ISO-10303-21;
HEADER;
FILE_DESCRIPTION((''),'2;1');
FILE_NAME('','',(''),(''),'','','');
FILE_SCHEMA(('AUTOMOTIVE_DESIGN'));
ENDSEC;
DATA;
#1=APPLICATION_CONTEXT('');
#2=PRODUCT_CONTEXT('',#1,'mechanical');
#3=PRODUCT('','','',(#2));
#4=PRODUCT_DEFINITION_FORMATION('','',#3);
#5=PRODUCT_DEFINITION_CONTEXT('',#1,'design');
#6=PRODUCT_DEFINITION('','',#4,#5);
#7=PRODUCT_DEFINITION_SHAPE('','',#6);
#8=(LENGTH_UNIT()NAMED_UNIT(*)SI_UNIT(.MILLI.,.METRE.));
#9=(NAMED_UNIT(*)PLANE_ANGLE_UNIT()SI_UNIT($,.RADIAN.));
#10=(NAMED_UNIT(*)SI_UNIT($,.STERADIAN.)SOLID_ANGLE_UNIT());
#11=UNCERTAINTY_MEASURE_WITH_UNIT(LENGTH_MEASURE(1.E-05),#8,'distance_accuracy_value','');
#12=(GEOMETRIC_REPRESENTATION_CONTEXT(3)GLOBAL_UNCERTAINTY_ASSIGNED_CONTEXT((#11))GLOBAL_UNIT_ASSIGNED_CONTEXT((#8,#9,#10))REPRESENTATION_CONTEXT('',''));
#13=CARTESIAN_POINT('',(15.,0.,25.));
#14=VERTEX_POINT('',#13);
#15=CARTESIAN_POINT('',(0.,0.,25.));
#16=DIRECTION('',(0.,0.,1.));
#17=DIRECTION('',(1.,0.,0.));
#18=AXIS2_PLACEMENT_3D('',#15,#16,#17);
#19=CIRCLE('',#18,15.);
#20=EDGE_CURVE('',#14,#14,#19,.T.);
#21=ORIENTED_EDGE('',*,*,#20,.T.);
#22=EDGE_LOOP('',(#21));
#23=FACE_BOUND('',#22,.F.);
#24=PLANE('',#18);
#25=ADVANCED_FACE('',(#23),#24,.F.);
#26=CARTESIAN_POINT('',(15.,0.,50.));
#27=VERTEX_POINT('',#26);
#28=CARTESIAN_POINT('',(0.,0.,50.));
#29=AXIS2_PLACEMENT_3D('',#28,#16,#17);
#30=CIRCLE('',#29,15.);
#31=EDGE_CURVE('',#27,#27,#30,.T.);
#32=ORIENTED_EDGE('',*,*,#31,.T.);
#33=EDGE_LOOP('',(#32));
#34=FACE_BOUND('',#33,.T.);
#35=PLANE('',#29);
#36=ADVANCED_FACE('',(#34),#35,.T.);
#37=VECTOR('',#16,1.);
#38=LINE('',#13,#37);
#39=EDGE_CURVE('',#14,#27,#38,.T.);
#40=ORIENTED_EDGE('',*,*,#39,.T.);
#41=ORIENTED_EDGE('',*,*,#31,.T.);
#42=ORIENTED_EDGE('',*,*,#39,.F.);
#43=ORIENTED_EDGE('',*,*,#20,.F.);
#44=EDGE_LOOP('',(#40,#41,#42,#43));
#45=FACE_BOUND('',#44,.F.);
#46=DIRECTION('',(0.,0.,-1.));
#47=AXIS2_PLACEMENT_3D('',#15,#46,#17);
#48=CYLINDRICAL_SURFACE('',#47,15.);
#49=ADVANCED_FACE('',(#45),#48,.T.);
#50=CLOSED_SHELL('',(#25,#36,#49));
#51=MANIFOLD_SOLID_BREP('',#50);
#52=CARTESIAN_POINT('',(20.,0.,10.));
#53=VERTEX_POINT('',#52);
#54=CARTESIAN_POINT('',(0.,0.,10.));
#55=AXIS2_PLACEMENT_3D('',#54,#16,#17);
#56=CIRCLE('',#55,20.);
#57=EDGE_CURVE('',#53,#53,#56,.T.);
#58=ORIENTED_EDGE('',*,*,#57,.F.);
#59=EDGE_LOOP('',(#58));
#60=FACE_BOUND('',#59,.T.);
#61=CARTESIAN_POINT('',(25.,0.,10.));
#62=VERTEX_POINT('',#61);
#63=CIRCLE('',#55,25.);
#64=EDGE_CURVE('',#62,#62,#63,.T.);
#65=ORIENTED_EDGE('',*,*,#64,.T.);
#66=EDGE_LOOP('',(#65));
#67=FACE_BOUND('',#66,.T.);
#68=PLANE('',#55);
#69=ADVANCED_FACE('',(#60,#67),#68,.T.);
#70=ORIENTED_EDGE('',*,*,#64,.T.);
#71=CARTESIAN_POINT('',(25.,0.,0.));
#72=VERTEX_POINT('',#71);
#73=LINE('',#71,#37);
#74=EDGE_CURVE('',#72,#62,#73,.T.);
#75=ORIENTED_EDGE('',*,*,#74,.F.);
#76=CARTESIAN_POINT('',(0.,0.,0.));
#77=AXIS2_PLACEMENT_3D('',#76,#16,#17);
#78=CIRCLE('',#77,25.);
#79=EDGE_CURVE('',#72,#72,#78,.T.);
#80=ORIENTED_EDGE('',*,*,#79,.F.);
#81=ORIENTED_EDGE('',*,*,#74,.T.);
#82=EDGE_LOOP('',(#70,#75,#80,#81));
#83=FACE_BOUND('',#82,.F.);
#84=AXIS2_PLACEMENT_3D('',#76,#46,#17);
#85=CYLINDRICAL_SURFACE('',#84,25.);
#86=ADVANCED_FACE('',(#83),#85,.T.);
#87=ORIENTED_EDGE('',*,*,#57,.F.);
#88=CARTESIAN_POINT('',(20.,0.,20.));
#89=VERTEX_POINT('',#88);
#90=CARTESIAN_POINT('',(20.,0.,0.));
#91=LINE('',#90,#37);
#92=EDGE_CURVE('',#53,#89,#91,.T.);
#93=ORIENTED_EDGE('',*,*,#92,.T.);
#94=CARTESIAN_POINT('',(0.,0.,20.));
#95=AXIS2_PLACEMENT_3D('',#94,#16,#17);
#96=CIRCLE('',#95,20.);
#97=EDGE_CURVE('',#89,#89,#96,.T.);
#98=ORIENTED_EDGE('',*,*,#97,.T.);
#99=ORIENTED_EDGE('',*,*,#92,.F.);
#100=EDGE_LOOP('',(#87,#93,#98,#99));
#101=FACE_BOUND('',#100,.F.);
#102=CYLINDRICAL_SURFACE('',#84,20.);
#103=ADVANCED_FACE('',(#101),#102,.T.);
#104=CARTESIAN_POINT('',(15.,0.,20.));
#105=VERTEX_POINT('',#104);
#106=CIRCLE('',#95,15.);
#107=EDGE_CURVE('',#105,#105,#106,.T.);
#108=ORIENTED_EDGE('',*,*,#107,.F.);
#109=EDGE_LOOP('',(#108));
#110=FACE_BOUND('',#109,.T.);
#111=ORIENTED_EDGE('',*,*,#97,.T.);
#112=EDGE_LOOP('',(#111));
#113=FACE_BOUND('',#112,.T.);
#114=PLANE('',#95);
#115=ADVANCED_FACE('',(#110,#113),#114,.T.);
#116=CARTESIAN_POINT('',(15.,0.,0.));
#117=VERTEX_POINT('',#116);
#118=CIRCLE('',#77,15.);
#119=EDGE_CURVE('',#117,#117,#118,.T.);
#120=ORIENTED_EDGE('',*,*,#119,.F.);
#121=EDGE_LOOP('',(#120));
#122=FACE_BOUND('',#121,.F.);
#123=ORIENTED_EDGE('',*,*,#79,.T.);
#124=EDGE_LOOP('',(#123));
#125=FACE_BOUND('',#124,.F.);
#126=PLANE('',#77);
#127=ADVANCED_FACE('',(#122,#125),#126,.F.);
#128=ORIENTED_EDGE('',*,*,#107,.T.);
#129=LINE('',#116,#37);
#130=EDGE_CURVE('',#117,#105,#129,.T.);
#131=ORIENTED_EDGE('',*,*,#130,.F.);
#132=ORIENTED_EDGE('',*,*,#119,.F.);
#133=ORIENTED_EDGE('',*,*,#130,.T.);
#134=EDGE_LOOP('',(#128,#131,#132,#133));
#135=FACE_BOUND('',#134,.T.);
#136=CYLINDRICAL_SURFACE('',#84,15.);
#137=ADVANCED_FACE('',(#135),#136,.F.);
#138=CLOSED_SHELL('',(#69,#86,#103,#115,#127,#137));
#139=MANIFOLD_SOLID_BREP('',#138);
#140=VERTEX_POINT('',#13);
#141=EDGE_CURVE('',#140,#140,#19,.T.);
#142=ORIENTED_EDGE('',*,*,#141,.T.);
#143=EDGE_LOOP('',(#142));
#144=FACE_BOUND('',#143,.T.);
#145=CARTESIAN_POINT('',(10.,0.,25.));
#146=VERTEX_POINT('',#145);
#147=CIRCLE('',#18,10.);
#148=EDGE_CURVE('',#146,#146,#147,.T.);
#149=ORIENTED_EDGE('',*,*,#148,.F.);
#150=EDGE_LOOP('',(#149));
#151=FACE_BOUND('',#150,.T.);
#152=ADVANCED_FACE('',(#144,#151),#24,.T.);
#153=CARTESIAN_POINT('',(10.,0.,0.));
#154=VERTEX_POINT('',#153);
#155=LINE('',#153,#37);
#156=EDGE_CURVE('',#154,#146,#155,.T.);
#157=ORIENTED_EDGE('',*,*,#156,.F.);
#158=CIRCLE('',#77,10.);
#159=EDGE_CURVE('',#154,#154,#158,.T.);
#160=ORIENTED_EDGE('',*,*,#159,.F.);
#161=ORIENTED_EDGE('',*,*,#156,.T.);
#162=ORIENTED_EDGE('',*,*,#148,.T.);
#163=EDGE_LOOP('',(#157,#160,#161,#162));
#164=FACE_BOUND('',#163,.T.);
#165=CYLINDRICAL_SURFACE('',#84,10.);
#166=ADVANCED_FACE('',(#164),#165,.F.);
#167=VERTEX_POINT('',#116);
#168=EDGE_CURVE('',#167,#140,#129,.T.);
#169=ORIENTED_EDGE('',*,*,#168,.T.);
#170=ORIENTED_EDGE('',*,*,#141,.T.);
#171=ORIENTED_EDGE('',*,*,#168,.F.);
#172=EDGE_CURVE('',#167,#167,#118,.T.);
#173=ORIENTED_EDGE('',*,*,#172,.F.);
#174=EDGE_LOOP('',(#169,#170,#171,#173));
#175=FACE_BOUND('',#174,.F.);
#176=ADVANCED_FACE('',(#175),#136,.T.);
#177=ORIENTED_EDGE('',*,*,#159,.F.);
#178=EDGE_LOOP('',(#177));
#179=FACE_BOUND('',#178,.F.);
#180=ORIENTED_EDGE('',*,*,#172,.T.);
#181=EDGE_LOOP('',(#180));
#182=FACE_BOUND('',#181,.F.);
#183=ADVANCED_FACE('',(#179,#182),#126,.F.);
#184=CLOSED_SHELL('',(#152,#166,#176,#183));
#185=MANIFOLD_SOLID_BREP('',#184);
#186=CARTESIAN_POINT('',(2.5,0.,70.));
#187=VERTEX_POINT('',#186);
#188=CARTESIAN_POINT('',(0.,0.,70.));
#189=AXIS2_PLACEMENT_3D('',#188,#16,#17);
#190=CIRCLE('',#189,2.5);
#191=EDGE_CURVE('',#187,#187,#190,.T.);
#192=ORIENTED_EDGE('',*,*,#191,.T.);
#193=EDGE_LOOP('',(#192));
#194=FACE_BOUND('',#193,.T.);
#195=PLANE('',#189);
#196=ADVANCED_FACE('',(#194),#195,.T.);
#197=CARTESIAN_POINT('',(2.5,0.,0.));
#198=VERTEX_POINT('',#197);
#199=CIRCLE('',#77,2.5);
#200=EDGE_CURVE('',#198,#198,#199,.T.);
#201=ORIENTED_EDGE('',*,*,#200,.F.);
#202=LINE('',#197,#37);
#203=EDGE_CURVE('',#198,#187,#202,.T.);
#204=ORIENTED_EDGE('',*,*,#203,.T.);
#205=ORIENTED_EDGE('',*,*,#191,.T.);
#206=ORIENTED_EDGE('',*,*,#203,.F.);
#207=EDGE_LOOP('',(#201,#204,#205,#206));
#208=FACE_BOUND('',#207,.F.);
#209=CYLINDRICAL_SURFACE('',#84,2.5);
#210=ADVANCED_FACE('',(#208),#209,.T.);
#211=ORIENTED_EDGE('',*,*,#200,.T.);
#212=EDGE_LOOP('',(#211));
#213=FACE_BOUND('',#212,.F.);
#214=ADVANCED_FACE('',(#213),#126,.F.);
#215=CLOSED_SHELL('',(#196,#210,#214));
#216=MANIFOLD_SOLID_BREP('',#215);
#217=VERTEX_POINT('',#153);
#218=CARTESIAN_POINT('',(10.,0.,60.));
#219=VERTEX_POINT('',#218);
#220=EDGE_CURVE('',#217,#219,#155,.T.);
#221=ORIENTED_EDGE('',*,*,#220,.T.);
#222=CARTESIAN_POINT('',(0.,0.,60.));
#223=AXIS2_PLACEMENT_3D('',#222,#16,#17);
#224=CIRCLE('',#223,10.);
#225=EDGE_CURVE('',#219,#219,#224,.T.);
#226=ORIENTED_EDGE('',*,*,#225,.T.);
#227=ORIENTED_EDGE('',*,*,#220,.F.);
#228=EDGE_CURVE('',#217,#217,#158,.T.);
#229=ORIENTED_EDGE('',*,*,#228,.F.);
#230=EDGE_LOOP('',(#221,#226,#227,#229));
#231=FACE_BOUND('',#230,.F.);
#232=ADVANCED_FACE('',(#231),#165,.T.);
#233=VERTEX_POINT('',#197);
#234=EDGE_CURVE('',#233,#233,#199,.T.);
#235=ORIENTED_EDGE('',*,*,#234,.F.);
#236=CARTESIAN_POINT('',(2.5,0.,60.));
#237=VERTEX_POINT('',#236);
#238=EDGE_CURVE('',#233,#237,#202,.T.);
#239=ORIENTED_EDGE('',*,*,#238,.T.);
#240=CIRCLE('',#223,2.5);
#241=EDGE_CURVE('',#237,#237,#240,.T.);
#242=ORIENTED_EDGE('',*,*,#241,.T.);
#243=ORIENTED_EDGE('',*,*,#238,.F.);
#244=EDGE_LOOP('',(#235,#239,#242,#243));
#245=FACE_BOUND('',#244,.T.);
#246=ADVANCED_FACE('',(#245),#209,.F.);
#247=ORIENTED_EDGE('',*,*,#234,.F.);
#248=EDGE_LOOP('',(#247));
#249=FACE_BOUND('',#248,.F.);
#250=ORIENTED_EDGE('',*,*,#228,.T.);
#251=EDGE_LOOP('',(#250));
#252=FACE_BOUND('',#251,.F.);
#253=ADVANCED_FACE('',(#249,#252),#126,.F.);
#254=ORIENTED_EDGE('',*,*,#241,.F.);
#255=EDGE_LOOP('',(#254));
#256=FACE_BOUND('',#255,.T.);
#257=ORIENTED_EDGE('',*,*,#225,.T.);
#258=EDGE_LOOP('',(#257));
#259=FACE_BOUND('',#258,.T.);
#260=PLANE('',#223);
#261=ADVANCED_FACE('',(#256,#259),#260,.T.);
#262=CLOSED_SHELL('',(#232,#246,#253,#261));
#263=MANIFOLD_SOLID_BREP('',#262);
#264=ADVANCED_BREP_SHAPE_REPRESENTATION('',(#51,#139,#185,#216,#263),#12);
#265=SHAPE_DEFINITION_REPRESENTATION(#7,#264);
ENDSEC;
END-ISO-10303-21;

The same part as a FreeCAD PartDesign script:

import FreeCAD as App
import Part
import Sketcher
from FreeCAD import Vector
Q = App.Units.Quantity

doc = App.newDocument("Part")
body = doc.addObject("PartDesign::Body", "Body")

# Sketch on XY plane
sketch1 = doc.addObject("Sketcher::SketchObject", "Sketch")
body.addObject(sketch1)
sketch1.AttachmentSupport = (doc.XY_Plane, [""])
sketch1.MapMode = "FlatFace"
sketch1.addGeometry(Part.Circle(Vector(0, 0, 0), Vector(0, 0, 1), 2.5), False)
sketch1.addConstraint(Sketcher.Constraint("Coincident", 0, 3, -1, 1))
sketch1.addConstraint(Sketcher.Constraint("Diameter", 0, Q("5 mm")))
pad1 = doc.addObject("PartDesign::Pad", "Pad")
body.addObject(pad1)
pad1.Profile = sketch1
pad1.Length = 70
body2 = doc.addObject("PartDesign::Body", "Body001")

# Sketch on XY plane
sketch2 = doc.addObject("Sketcher::SketchObject", "Sketch001")
body2.addObject(sketch2)
sketch2.AttachmentSupport = (doc.getObject("XY_Plane001"), [""])
sketch2.MapMode = "FlatFace"
sketch2.addGeometry(Part.Circle(Vector(0, 0, 0), Vector(0, 0, 1), 25), False)
sketch2.addGeometry(Part.Circle(Vector(0, 0, 0), Vector(0, 0, 1), 20), False)
sketch2.addConstraint(Sketcher.Constraint("Coincident", 0, 3, -1, 1))
sketch2.addConstraint(Sketcher.Constraint("Coincident", 1, 3, -1, 1))
sketch2.addConstraint(Sketcher.Constraint("Diameter", 0, Q("50 mm")))
sketch2.addConstraint(Sketcher.Constraint("Diameter", 1, Q("40 mm")))
pad2 = doc.addObject("PartDesign::Pad", "Pad001")
body2.addObject(pad2)
pad2.Profile = sketch2
pad2.Length = 10

# Sketch on XY plane
sketch3 = doc.addObject("Sketcher::SketchObject", "Sketch002")
body2.addObject(sketch3)
sketch3.AttachmentSupport = (doc.getObject("XY_Plane001"), [""])
sketch3.MapMode = "FlatFace"
sketch3.addGeometry(Part.Circle(Vector(0, 0, 0), Vector(0, 0, 1), 20), False)
sketch3.addGeometry(Part.Circle(Vector(0, 0, 0), Vector(0, 0, 1), 15), False)
sketch3.addConstraint(Sketcher.Constraint("Coincident", 0, 3, -1, 1))
sketch3.addConstraint(Sketcher.Constraint("Coincident", 1, 3, -1, 1))
sketch3.addConstraint(Sketcher.Constraint("Diameter", 0, Q("40 mm")))
sketch3.addConstraint(Sketcher.Constraint("Diameter", 1, Q("30 mm")))
pad3 = doc.addObject("PartDesign::Pad", "Pad002")
body2.addObject(pad3)
pad3.Profile = sketch3
pad3.Length = 20
body3 = doc.addObject("PartDesign::Body", "Body002")

# Sketch on XY plane
sketch4 = doc.addObject("Sketcher::SketchObject", "Sketch003")
body3.addObject(sketch4)
sketch4.AttachmentSupport = (doc.getObject("XY_Plane002"), [""])
sketch4.MapMode = "FlatFace"
sketch4.addGeometry(Part.Circle(Vector(0, 0, 0), Vector(0, 0, 1), 15), False)
sketch4.addGeometry(Part.Circle(Vector(0, 0, 0), Vector(0, 0, 1), 10), False)
sketch4.addConstraint(Sketcher.Constraint("Coincident", 0, 3, -1, 1))
sketch4.addConstraint(Sketcher.Constraint("Coincident", 1, 3, -1, 1))
sketch4.addConstraint(Sketcher.Constraint("Diameter", 0, Q("30 mm")))
sketch4.addConstraint(Sketcher.Constraint("Diameter", 1, Q("20 mm")))
pad4 = doc.addObject("PartDesign::Pad", "Pad003")
body3.addObject(pad4)
pad4.Profile = sketch4
pad4.Length = 25
body4 = doc.addObject("PartDesign::Body", "Body003")

# Sketch on XY plane
sketch5 = doc.addObject("Sketcher::SketchObject", "Sketch004")
body4.addObject(sketch5)
sketch5.AttachmentSupport = (doc.getObject("XY_Plane003"), [""])
sketch5.MapMode = "FlatFace"
sketch5.AttachmentOffset = App.Placement(Vector(0, 0, 25), App.Rotation())
sketch5.addGeometry(Part.Circle(Vector(0, 0, 0), Vector(0, 0, 1), 15), False)
sketch5.addConstraint(Sketcher.Constraint("Coincident", 0, 3, -1, 1))
sketch5.addConstraint(Sketcher.Constraint("Diameter", 0, Q("30 mm")))
pad5 = doc.addObject("PartDesign::Pad", "Pad004")
body4.addObject(pad5)
pad5.Profile = sketch5
pad5.Length = 25
body5 = doc.addObject("PartDesign::Body", "Body004")

# Sketch on XY plane
sketch6 = doc.addObject("Sketcher::SketchObject", "Sketch005")
body5.addObject(sketch6)
sketch6.AttachmentSupport = (doc.getObject("XY_Plane004"), [""])
sketch6.MapMode = "FlatFace"
sketch6.addGeometry(Part.Circle(Vector(0, 0, 0), Vector(0, 0, 1), 10), False)
sketch6.addGeometry(Part.Circle(Vector(0, 0, 0), Vector(0, 0, 1), 2.5), False)
sketch6.addConstraint(Sketcher.Constraint("Coincident", 0, 3, -1, 1))
sketch6.addConstraint(Sketcher.Constraint("Coincident", 1, 3, -1, 1))
sketch6.addConstraint(Sketcher.Constraint("Diameter", 0, Q("20 mm")))
sketch6.addConstraint(Sketcher.Constraint("Diameter", 1, Q("5 mm")))
pad6 = doc.addObject("PartDesign::Pad", "Pad005")
body5.addObject(pad6)
pad6.Profile = sketch6
pad6.Length = 60

doc.recompute()
